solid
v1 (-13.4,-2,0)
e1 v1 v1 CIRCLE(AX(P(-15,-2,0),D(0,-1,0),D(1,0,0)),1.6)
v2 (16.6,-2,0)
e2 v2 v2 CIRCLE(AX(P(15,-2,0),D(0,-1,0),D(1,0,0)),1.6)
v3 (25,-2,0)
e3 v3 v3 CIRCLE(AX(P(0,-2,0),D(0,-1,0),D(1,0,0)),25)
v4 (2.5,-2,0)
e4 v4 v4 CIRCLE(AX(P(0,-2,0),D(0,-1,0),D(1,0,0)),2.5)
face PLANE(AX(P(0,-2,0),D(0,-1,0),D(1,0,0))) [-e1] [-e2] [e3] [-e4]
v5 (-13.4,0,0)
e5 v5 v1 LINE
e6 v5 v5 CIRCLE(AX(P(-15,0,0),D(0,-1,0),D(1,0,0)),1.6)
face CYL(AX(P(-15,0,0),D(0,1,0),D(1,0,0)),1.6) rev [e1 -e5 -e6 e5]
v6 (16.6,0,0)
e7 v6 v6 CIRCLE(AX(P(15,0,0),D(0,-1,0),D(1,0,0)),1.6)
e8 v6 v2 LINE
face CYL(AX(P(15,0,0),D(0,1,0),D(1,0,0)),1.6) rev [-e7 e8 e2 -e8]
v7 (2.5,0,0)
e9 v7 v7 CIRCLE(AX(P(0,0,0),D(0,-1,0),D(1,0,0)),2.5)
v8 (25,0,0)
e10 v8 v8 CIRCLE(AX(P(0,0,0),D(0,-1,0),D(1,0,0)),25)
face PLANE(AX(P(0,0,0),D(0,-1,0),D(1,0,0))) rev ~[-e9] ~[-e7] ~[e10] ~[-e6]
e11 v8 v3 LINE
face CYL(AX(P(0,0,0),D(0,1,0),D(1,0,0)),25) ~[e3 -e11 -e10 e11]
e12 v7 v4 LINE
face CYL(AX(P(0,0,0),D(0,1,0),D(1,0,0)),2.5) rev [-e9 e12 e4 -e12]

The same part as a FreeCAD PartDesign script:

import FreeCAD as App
import Part
import Sketcher
from FreeCAD import Vector

doc = App.newDocument("Part")
body = doc.addObject("PartDesign::Body", "Body")

# Sketch on XZ plane
sketch1 = body.newObject("Sketcher::SketchObject", "Sketch")
sketch1.AttachmentSupport = (doc.getObject("XZ_Plane"), [""])
sketch1.MapMode = "FlatFace"
sketch1.addGeometry(Part.Circle(Vector(0, 0, 0), Vector(0, 0, 1), 25), False)
sketch1.addGeometry(Part.Circle(Vector(-15, 0, 0), Vector(0, 0, 1), 1.6), False)
sketch1.addGeometry(Part.Circle(Vector(0, 0, 0), Vector(0, 0, 1), 2.5), False)
sketch1.addGeometry(Part.Circle(Vector(15, 0, 0), Vector(0, 0, 1), 1.6), False)
sketch1.addConstraint(Sketcher.Constraint("Coincident", 0, 3, -1, 1))
sketch1.addConstraint(Sketcher.Constraint("Coincident", 2, 3, -1, 1))
sketch1.addConstraint(Sketcher.Constraint("Equal", 1, 3))
sketch1.addConstraint(Sketcher.Constraint("Symmetric", 1, 3, 3, 3, -1, 1))
sketch1.addConstraint(Sketcher.Constraint("PointOnObject", 1, 3, -1))
sketch1.addConstraint(Sketcher.Constraint("Diameter", 0, 50.0))
sketch1.addConstraint(Sketcher.Constraint("Diameter", 2, 5.0))
sketch1.addConstraint(Sketcher.Constraint("Diameter", 1, 3.2))
sketch1.addConstraint(Sketcher.Constraint("DistanceX", 1, 3, -1, 1, 15.0))
pad1 = body.newObject("PartDesign::Pad", "Pad")
pad1.Profile = sketch1
pad1.Length = 2

doc.recompute()
